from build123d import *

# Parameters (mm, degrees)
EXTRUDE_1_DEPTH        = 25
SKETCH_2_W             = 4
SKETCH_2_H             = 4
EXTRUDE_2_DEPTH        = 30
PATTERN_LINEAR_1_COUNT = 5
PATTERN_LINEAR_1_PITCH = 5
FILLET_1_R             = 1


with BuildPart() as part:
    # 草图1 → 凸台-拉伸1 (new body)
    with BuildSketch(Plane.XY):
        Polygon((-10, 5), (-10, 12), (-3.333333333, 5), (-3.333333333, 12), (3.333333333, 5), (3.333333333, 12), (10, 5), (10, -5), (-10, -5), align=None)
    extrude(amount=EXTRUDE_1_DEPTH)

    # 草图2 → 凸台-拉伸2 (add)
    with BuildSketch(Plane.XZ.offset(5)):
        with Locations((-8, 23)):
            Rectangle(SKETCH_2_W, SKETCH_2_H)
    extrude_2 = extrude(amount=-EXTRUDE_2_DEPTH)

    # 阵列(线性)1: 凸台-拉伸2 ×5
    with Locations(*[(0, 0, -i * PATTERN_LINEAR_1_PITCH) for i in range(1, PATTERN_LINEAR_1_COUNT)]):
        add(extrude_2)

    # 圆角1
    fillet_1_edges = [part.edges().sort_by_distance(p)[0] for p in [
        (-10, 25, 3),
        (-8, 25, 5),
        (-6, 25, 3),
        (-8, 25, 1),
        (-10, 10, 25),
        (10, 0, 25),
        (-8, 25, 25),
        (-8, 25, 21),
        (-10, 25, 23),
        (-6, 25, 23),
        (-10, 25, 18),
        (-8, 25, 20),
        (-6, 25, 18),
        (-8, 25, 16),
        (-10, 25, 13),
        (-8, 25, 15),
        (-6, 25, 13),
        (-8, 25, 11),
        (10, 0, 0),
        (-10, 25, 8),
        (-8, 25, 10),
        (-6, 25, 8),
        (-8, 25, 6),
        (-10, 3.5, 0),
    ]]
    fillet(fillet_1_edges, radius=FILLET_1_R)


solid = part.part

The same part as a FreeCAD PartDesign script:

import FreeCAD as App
import Part
import Sketcher
from FreeCAD import Vector


def edges_at(feature, points):
    """Names of the edges that pass closest to the given points."""
    edges = feature.Shape.Edges
    near = lambda p: min(range(len(edges)), key=lambda i: edges[i].distToShape(Part.Vertex(*p))[0])
    return sorted({f"Edge{near(p) + 1}" for p in points})

doc = App.newDocument("Part")
body = doc.addObject("PartDesign::Body", "Body")

sketch1 = body.newObject("Sketcher::SketchObject", "Sketch")
sketch1.AttachmentSupport = (doc.getObject("XY_Plane"), [""])
sketch1.MapMode = "FlatFace"
sketch1.addGeometry([
    Part.LineSegment(Vector(-10, 12, 0), Vector(-10, -5, 0)),
    Part.LineSegment(Vector(-10, -5, 0), Vector(10, -5, 0)),
    Part.LineSegment(Vector(10, -5, 0), Vector(10, 5, 0)),
    Part.LineSegment(Vector(10, 5, 0), Vector(3, 12, 0)),
    Part.LineSegment(Vector(3, 12, 0), Vector(3, 5, 0)),
    Part.LineSegment(Vector(3, 5, 0), Vector(-3, 12, 0)),
    Part.LineSegment(Vector(-3, 12, 0), Vector(-3, 5, 0)),
    Part.LineSegment(Vector(-3, 5, 0), Vector(-10, 12, 0)),
], False)
sketch1.addConstraint([
    Sketcher.Constraint("Coincident", 0, 2, 1, 1),
    Sketcher.Constraint("Coincident", 1, 2, 2, 1),
    Sketcher.Constraint("Coincident", 2, 2, 3, 1),
    Sketcher.Constraint("Coincident", 3, 2, 4, 1),
    Sketcher.Constraint("Coincident", 4, 2, 5, 1),
    Sketcher.Constraint("Coincident", 5, 2, 6, 1),
    Sketcher.Constraint("Coincident", 6, 2, 7, 1),
    Sketcher.Constraint("Coincident", 7, 2, 0, 1),
    Sketcher.Constraint("Vertical", 0),
    Sketcher.Constraint("Horizontal", 1),
    Sketcher.Constraint("Vertical", 2),
    Sketcher.Constraint("Vertical", 4),
    Sketcher.Constraint("Vertical", 6),
    Sketcher.Constraint("Symmetric", 0, 2, 2, 2, -1, 1),
    Sketcher.Constraint("Symmetric", 3, 2, 5, 2, -2),
    Sketcher.Constraint("Parallel", 3, 5),
    Sketcher.Constraint("Parallel", 5, 7),
    Sketcher.Constraint("Horizontal", 2, 2, 4, 2),
    Sketcher.Constraint("Horizontal", 4, 2, 6, 2),
    Sketcher.Constraint("DistanceX", 1, 1, 1, 2, 20.0),
    Sketcher.Constraint("DistanceY", 0, 2, 0, 1, 17.0),
    Sketcher.Constraint("DistanceY", 2, 1, 2, 2, 10.0),
])
pad1 = body.newObject("PartDesign::Pad", "Pad")
pad1.Profile = sketch1
pad1.Length = 25

sketch2 = body.newObject("Sketcher::SketchObject", "Sketch001")
sketch2.AttachmentSupport = (doc.getObject("XZ_Plane"), [""])
sketch2.MapMode = "FlatFace"
sketch2.AttachmentOffset = App.Placement(Vector(0, 0, 5), App.Rotation())
sketch2.addGeometry([
    Part.LineSegment(Vector(-10, 25, 0), Vector(-10, 21, 0)),
    Part.LineSegment(Vector(-10, 21, 0), Vector(-6, 21, 0)),
    Part.LineSegment(Vector(-6, 21, 0), Vector(-6, 25, 0)),
    Part.LineSegment(Vector(-6, 25, 0), Vector(-10, 25, 0)),
], False)
sketch2.addConstraint([
    Sketcher.Constraint("Coincident", 0, 2, 1, 1),
    Sketcher.Constraint("Coincident", 1, 2, 2, 1),
    Sketcher.Constraint("Coincident", 2, 2, 3, 1),
    Sketcher.Constraint("Coincident", 3, 2, 0, 1),
    Sketcher.Constraint("Vertical", 0),
    Sketcher.Constraint("Horizontal", 1),
    Sketcher.Constraint("Vertical", 2),
    Sketcher.Constraint("Horizontal", 3),
    Sketcher.Constraint("Equal", 3, 0),
    Sketcher.Constraint("DistanceX", 1, 1, 1, 2, 4.0),
    Sketcher.Constraint("DistanceX", 0, 2, -1, 1, 10.0),
    Sketcher.Constraint("DistanceY", -1, 1, 0, 2, 21.0),
])
pad2 = body.newObject("PartDesign::Pad", "Pad001")
pad2.Profile = sketch2
pad2.Length = 30
pad2.Reversed = True
doc.recompute()

linearpattern = body.newObject("PartDesign::LinearPattern", "LinearPattern")
linearpattern.Originals = [pad2]
linearpattern.Direction = (doc.getObject("Z_Axis"), [""])
linearpattern.Mode = "offset"
linearpattern.Offset = 5
linearpattern.Occurrences = 5
linearpattern.Reversed = True
body.Tip = linearpattern
doc.recompute()

fillet = body.newObject("PartDesign::Fillet", "Fillet")
fillet.Base = (linearpattern, edges_at(linearpattern, [
    (-10, 25, 3),
    (-8, 25, 5),
    (-6, 25, 3),
    (-8, 25, 1),
    (-10, 10, 25),
    (10, 0, 25),
    (-8, 25, 25),
    (-8, 25, 21),
    (-10, 25, 23),
    (-6, 25, 23),
    (-10, 25, 18),
    (-8, 25, 20),
    (-6, 25, 18),
    (-8, 25, 16),
    (-10, 25, 13),
    (-8, 25, 15),
    (-6, 25, 13),
    (-8, 25, 11),
    (10, 0, 0),
    (-10, 25, 8),
    (-8, 25, 10),
    (-6, 25, 8),
    (-8, 25, 6),
    (-10, 3.5, 0),
]))
fillet.Radius = 1

doc.recompute()
